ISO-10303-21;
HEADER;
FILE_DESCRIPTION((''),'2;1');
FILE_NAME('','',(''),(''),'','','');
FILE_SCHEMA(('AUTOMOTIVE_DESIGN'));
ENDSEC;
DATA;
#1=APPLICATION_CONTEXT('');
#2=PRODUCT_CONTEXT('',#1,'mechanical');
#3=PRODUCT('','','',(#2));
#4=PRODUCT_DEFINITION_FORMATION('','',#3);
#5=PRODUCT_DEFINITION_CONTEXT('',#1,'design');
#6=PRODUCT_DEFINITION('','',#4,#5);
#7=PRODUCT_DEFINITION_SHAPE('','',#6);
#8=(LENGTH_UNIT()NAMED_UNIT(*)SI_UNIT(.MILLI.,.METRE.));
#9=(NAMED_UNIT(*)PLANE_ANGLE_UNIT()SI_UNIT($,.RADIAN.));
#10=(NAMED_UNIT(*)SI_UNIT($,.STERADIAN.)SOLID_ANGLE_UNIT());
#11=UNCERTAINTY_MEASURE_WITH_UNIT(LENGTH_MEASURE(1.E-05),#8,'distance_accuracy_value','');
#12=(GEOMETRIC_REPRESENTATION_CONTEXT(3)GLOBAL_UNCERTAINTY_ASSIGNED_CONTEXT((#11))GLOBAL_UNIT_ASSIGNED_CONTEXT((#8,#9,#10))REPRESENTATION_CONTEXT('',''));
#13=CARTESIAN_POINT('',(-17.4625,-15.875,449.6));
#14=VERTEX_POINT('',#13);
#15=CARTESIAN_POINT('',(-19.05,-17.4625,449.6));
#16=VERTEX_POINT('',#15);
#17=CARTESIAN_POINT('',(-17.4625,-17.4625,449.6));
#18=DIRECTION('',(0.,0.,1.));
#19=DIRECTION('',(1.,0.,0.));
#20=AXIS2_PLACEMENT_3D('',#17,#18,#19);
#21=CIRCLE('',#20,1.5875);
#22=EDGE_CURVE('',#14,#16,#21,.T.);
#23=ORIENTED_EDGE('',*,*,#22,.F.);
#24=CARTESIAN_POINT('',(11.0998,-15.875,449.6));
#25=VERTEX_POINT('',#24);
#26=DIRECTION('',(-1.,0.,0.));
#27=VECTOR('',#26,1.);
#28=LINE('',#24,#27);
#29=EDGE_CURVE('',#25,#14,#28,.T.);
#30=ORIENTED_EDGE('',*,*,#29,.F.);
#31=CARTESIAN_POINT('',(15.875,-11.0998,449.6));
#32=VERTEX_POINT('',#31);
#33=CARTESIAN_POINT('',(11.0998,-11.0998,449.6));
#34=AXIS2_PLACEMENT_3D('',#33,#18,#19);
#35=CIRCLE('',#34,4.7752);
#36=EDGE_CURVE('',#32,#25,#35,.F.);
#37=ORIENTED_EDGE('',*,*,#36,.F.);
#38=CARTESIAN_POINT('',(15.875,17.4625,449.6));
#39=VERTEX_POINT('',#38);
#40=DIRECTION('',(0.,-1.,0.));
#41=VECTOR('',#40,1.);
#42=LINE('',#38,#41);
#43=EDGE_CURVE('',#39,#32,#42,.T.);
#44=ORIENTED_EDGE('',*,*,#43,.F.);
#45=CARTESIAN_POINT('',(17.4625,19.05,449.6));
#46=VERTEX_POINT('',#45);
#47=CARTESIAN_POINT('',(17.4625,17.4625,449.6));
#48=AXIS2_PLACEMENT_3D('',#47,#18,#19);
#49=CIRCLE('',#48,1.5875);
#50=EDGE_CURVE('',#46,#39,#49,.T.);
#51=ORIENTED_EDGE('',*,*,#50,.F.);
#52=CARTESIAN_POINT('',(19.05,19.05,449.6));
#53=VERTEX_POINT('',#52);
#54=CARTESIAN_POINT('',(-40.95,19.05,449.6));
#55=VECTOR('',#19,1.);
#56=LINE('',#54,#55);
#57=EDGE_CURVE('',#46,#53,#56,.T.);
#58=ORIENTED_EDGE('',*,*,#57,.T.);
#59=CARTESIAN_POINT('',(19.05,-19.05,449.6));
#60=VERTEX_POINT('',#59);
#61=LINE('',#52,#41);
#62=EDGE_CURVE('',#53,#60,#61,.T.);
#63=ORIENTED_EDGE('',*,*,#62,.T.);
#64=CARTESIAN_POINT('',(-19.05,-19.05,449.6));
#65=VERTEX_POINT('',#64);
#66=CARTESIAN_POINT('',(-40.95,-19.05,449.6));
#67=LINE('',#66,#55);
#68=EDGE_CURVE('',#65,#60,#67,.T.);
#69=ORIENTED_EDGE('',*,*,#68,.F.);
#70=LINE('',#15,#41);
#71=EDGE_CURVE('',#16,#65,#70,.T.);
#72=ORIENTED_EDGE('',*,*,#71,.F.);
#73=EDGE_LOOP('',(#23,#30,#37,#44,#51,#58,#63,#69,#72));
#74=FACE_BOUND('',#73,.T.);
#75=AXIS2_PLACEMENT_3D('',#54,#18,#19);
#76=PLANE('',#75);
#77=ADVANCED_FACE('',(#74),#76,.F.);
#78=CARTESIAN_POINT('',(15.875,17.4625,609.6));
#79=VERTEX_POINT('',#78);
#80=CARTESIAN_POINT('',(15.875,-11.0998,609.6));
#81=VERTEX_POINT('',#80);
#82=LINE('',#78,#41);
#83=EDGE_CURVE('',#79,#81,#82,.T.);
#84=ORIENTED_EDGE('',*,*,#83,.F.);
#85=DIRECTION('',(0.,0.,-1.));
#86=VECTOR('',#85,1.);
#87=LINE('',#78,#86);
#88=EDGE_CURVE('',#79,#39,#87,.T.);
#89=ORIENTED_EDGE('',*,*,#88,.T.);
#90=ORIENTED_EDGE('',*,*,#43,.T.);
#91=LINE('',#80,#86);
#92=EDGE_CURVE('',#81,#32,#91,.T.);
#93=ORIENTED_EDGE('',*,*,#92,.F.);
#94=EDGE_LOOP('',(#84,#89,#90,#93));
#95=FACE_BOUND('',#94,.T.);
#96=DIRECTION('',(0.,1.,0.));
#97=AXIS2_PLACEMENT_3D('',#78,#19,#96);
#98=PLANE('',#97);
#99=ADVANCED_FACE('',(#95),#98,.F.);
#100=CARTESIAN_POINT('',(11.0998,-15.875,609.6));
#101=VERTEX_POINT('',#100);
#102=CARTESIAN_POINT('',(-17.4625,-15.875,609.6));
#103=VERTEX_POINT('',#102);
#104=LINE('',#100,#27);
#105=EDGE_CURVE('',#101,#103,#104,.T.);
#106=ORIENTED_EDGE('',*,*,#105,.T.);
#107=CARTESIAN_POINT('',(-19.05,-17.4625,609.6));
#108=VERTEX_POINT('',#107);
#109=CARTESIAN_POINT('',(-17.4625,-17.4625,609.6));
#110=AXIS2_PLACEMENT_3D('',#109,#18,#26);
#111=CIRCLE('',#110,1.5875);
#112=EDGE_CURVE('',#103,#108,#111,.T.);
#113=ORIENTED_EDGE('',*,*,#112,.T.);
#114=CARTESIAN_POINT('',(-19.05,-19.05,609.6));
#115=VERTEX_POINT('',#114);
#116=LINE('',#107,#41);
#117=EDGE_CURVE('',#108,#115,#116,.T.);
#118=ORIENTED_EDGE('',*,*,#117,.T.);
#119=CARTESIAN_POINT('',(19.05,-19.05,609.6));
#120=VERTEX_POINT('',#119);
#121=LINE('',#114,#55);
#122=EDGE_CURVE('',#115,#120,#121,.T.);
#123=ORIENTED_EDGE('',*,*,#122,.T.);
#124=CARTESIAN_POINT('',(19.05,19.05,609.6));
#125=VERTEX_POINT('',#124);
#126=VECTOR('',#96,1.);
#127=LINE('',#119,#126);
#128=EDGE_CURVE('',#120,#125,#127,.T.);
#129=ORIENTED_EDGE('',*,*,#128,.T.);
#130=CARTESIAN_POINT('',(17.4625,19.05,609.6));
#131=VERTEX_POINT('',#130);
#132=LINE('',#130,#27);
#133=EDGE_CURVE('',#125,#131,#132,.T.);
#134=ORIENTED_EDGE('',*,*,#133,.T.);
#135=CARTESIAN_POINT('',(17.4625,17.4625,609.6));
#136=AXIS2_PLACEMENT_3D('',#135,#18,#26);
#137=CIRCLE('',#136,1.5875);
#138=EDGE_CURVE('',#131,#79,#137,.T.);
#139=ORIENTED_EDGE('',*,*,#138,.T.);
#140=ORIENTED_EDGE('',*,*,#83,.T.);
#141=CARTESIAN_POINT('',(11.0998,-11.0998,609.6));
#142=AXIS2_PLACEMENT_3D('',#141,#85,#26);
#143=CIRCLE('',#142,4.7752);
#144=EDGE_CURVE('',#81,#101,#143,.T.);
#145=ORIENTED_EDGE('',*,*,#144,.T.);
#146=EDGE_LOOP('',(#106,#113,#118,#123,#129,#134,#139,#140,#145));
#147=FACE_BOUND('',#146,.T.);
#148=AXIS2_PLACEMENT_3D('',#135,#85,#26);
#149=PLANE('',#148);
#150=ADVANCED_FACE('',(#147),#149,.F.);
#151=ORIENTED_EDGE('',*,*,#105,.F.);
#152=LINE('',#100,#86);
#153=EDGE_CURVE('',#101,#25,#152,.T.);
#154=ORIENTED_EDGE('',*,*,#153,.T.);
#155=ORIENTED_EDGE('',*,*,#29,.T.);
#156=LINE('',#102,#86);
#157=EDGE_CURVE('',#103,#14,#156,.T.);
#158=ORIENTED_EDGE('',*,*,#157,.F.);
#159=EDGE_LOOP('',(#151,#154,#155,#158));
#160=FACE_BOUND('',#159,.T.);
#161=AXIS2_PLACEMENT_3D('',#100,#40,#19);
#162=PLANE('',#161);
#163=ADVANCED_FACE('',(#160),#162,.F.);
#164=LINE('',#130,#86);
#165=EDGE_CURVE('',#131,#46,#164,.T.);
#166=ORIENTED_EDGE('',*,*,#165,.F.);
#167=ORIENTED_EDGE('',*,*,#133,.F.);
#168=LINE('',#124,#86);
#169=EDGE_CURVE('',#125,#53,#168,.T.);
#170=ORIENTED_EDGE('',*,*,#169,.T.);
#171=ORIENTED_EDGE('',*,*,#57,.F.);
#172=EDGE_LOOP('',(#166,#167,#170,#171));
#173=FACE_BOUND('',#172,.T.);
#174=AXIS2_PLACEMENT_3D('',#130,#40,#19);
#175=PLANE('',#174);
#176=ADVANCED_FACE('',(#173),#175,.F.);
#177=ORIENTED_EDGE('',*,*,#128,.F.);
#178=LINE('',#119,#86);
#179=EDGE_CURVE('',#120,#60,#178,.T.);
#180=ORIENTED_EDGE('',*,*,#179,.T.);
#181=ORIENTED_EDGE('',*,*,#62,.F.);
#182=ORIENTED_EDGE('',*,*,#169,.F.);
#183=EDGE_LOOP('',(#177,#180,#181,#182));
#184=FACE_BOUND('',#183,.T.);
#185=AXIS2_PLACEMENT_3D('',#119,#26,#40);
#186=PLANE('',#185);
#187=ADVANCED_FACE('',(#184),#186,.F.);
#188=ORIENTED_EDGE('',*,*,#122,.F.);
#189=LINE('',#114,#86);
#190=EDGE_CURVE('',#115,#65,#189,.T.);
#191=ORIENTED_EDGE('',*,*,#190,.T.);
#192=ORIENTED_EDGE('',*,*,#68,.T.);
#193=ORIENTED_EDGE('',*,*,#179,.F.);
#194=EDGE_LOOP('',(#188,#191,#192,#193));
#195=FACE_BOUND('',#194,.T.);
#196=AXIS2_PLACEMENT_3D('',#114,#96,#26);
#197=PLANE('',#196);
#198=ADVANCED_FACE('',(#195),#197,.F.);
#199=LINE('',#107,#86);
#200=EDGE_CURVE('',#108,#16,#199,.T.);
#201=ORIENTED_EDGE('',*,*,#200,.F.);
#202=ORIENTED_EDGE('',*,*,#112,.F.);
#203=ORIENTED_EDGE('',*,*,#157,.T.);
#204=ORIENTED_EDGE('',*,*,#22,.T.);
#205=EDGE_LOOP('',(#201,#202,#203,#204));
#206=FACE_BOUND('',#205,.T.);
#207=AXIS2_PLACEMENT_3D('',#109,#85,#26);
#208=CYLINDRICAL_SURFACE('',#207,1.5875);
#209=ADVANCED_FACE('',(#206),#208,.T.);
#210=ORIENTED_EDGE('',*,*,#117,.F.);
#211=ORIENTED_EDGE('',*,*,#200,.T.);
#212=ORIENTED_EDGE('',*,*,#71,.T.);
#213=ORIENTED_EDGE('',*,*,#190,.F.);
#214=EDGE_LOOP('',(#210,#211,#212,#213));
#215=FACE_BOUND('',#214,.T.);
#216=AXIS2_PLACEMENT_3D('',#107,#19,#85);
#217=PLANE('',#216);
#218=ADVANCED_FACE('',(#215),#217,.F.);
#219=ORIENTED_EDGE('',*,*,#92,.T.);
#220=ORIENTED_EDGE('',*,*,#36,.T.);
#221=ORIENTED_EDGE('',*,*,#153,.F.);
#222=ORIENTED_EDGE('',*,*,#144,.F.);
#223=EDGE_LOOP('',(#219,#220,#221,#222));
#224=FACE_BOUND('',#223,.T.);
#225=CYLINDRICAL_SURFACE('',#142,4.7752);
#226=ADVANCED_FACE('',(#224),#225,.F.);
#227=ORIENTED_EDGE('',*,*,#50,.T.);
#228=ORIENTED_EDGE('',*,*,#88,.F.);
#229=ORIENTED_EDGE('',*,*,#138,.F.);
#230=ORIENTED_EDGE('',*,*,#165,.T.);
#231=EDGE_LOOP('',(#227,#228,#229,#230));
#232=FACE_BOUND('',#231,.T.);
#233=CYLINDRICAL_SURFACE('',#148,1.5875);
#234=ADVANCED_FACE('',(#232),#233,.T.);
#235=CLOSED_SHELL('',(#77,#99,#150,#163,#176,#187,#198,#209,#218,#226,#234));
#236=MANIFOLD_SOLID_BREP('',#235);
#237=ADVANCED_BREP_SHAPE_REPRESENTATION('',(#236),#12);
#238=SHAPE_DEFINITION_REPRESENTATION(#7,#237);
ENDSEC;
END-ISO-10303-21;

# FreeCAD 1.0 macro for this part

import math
import FreeCAD as App
import Part
import Sketcher
Q = App.Units.Quantity


def add_polygon(sketch, points):
    """Adds a closed chain of lines whose ends are joined by coincident constraints."""
    first, n = sketch.GeometryCount, len(points)
    for a, b in zip(points, points[1:] + points[:1]):
        sketch.addGeometry(Part.LineSegment(App.Vector(*a, 0), App.Vector(*b, 0)), False)
    for i in range(n):
        sketch.addConstraint(Sketcher.Constraint("Coincident", first + i, 2, first + (i + 1) % n, 1))

doc = App.newDocument("Part")
body = doc.addObject("PartDesign::Body", "Body")

# Sketch on XY plane
sketch1 = body.newObject("Sketcher::SketchObject", "Sketch")
sketch1.AttachmentSupport = (doc.getObject("XY_Plane"), [""])
sketch1.MapMode = "FlatFace"
sketch1.addGeometry([
    Part.LineSegment(App.Vector(-19.05, -19.05, 0), App.Vector(19.05, -19.05, 0)),  # 0
    Part.LineSegment(App.Vector(19.05, -19.05, 0), App.Vector(19.05, 19.05, 0)),  # 1
    Part.LineSegment(App.Vector(19.05, 19.05, 0), App.Vector(17.4625, 19.05, 0)),  # 2
    Part.ArcOfCircle(Part.Circle(App.Vector(17.4625, 17.4625, 0), App.Vector(0, 0, 1), 1.5875), math.radians(90), math.radians(180)),  # 3
    Part.LineSegment(App.Vector(15.875, 17.4625, 0), App.Vector(15.875, -11.0998, 0)),  # 4
    Part.ArcOfCircle(Part.Circle(App.Vector(11.0998, -11.0998, 0), App.Vector(0, 0, 1), 4.7752), math.radians(-90), math.radians(0)),  # 5
    Part.LineSegment(App.Vector(11.0998, -15.875, 0), App.Vector(-17.4625, -15.875, 0)),  # 6
    Part.ArcOfCircle(Part.Circle(App.Vector(-17.4625, -17.4625, 0), App.Vector(0, 0, 1), 1.5875), math.radians(90), math.radians(180)),  # 7
    Part.LineSegment(App.Vector(-19.05, -17.4625, 0), App.Vector(-19.05, -19.05, 0)),  # 8
], False)
sketch1.addConstraint([
    Sketcher.Constraint("Coincident", 0, 2, 1, 1),
    Sketcher.Constraint("Coincident", 1, 2, 2, 1),
    Sketcher.Constraint("Tangent", 2, 2, 3, 1),
    Sketcher.Constraint("Tangent", 3, 2, 4, 1),
    Sketcher.Constraint("Tangent", 4, 2, 5, 2),
    Sketcher.Constraint("Tangent", 5, 1, 6, 1),
    Sketcher.Constraint("Tangent", 6, 2, 7, 1),
    Sketcher.Constraint("Tangent", 7, 2, 8, 1),
    Sketcher.Constraint("Coincident", 8, 2, 0, 1),
    Sketcher.Constraint("Horizontal", 0),
    Sketcher.Constraint("Vertical", 1),
    Sketcher.Constraint("Horizontal", 2),
    Sketcher.Constraint("Vertical", 4),
    Sketcher.Constraint("Horizontal", 6),
    Sketcher.Constraint("Vertical", 8),
    Sketcher.Constraint("Equal", 3, 7),
    Sketcher.Constraint("Symmetric", 3, 3, 7, 3, -1, 1),
    Sketcher.Constraint("Symmetric", 1, 2, 8, 2, -1, 1),
    Sketcher.Constraint("Equal", 0, 1),
    Sketcher.Constraint("DistanceX", 0, 1, 0, 2, Q("1.5 in")),
    Sketcher.Constraint("Radius", 3, Q("0.0625 in")),
    Sketcher.Constraint("Radius", 5, Q("0.188 in")),
])
pad1 = body.newObject("PartDesign::Pad", "Pad")
pad1.Profile = sketch1
pad1.Length = Q("48 in")
pad1.Midplane = True

# Sketch on YZ plane
sketch2 = body.newObject("Sketcher::SketchObject", "Sketch001")
sketch2.AttachmentSupport = (doc.getObject("YZ_Plane"), [""])
sketch2.MapMode = "FlatFace"
sketch2.AttachmentOffset = App.Placement(App.Vector(0, 0, 0.75 * 25.4), App.Rotation())
add_polygon(sketch2, [(19.05, 25.6), (-19.05, 25.6), (-19.05, -609.6), (19.05, -609.6)])  # lines 0-3
sketch2.addConstraint([
    Sketcher.Constraint("Horizontal", 0),
    Sketcher.Constraint("Vertical", 1),
    Sketcher.Constraint("Horizontal", 2),
    Sketcher.Constraint("Vertical", 3),
    Sketcher.Constraint("DistanceX", 0, 2, 0, 1, Q("1.5 in")),
    Sketcher.Constraint("DistanceY", 1, 2, -1, 1, Q("24 in")),
    Sketcher.Constraint("DistanceX", 0, 2, -1, 1, Q("0.75 in")),
    Sketcher.Constraint("DistanceY", 1, 2, 1, 1, 635.2),
])
pocket1 = body.newObject("PartDesign::Pocket", "Pocket")
pocket1.Profile = sketch2
pocket1.Length = 60

# Sketch on YZ plane
sketch3 = body.newObject("Sketcher::SketchObject", "Sketch002")
sketch3.AttachmentSupport = (doc.getObject("YZ_Plane"), [""])
sketch3.MapMode = "FlatFace"
sketch3.AttachmentOffset = App.Placement(App.Vector(0, 0, 0.75 * 25.4), App.Rotation())
add_polygon(sketch3, [(19.05, 449.6), (-19.05, 449.6), (-19.05, 25.6), (19.05, 25.6)])  # lines 0-3
sketch3.addConstraint([
    Sketcher.Constraint("Horizontal", 0),
    Sketcher.Constraint("Vertical", 1),
    Sketcher.Constraint("Horizontal", 2),
    Sketcher.Constraint("Vertical", 3),
    Sketcher.Constraint("DistanceX", 0, 2, 0, 1, Q("1.5 in")),
    Sketcher.Constraint("DistanceX", 0, 2, -1, 1, Q("0.75 in")),
    Sketcher.Constraint("DistanceY", 1, 2, 1, 1, 424.0),
    Sketcher.Constraint("DistanceY", -1, 1, 0, 2, 449.6),
])
pocket2 = body.newObject("PartDesign::Pocket", "Pocket001")
pocket2.Profile = sketch3
pocket2.Length = 60

doc.recompute()
